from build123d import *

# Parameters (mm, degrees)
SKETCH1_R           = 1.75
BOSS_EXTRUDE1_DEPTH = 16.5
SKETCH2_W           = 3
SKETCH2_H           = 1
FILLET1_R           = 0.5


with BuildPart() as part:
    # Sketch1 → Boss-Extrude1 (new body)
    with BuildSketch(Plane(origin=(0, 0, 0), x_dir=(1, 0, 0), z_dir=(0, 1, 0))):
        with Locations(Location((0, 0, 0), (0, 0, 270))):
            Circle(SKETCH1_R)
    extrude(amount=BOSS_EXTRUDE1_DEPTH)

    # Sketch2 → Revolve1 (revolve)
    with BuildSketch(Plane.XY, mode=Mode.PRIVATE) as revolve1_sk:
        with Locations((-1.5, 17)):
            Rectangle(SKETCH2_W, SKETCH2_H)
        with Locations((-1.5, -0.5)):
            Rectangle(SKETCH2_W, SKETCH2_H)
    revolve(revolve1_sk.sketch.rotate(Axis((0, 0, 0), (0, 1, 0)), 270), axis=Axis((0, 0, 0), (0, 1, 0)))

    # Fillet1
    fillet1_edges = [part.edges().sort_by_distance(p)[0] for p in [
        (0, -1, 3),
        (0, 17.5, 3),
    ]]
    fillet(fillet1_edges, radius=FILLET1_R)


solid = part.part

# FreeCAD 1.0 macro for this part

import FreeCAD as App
import Part
import Sketcher

V = App.Vector
Q = App.Units.Quantity


def edges_at(feature, points):
    """Names of the edges that pass closest to the given points."""
    edges = feature.Shape.Edges
    near = lambda p: min(range(len(edges)), key=lambda i: edges[i].distToShape(Part.Vertex(*p))[0])
    return sorted({f"Edge{near(p) + 1}" for p in points})

doc = App.newDocument("Part")
body = doc.addObject("PartDesign::Body", "Body")

# Sketch on XZ plane
sketch1 = doc.addObject("Sketcher::SketchObject", "Sketch")
body.addObject(sketch1)
sketch1.AttachmentSupport = (doc.XZ_Plane, [""])
sketch1.MapMode = "FlatFace"
sketch1.addGeometry(Part.Circle(V(0, 0, 0), V(0, 0, 1), 1.8), False)
sketch1.addConstraint(Sketcher.Constraint("Coincident", 0, 3, -1, 1))
sketch1.addConstraint(Sketcher.Constraint("Diameter", 0, Q("3.5 mm")))
pad1 = doc.addObject("PartDesign::Pad", "Pad")
body.addObject(pad1)
pad1.Profile = sketch1
pad1.Length = 16.5
pad1.Reversed = True

# Sketch on XY plane
sketch2 = doc.addObject("Sketcher::SketchObject", "Sketch001")
body.addObject(sketch2)
sketch2.AttachmentSupport = (doc.XY_Plane, [""])
sketch2.MapMode = "FlatFace"
sketch2.addGeometry(Part.LineSegment(V(-3, 17.5, 0), V(-3, 16.5, 0)), False)
sketch2.addGeometry(Part.LineSegment(V(-3, 16.5, 0), V(0, 16.5, 0)), False)
sketch2.addGeometry(Part.LineSegment(V(0, 16.5, 0), V(0, 17.5, 0)), False)
sketch2.addGeometry(Part.LineSegment(V(0, 17.5, 0), V(-3, 17.5, 0)), False)
sketch2.addGeometry(Part.LineSegment(V(-3, 0, 0), V(-3, -1, 0)), False)
sketch2.addGeometry(Part.LineSegment(V(-3, -1, 0), V(0, -1, 0)), False)
sketch2.addGeometry(Part.LineSegment(V(0, -1, 0), V(0, 0, 0)), False)
sketch2.addGeometry(Part.LineSegment(V(0, 0, 0), V(-3, 0, 0)), False)
sketch2.addConstraint(Sketcher.Constraint("Coincident", 0, 2, 1, 1))
sketch2.addConstraint(Sketcher.Constraint("Coincident", 1, 2, 2, 1))
sketch2.addConstraint(Sketcher.Constraint("Coincident", 2, 2, 3, 1))
sketch2.addConstraint(Sketcher.Constraint("Coincident", 3, 2, 0, 1))
sketch2.addConstraint(Sketcher.Constraint("Coincident", 4, 2, 5, 1))
sketch2.addConstraint(Sketcher.Constraint("Coincident", 5, 2, 6, 1))
sketch2.addConstraint(Sketcher.Constraint("Coincident", 6, 2, 7, 1))
sketch2.addConstraint(Sketcher.Constraint("Coincident", 7, 2, 4, 1))
sketch2.addConstraint(Sketcher.Constraint("Vertical", 0))
sketch2.addConstraint(Sketcher.Constraint("Horizontal", 1))
sketch2.addConstraint(Sketcher.Constraint("Vertical", 2))
sketch2.addConstraint(Sketcher.Constraint("Horizontal", 3))
sketch2.addConstraint(Sketcher.Constraint("Vertical", 4))
sketch2.addConstraint(Sketcher.Constraint("Horizontal", 5))
sketch2.addConstraint(Sketcher.Constraint("Vertical", 6))
sketch2.addConstraint(Sketcher.Constraint("Horizontal", 7))
sketch2.addConstraint(Sketcher.Constraint("Coincident", 6, 2, -1, 1))
sketch2.addConstraint(Sketcher.Constraint("PointOnObject", 1, 2, -2))
sketch2.addConstraint(Sketcher.Constraint("Vertical", 3, 2, 4, 2))
sketch2.addConstraint(Sketcher.Constraint("Equal", 2, 4))
sketch2.addConstraint(Sketcher.Constraint("DistanceX", 1, 1, 1, 2, Q("3 mm")))
sketch2.addConstraint(Sketcher.Constraint("DistanceY", 0, 2, 0, 1, Q("1 mm")))
sketch2.addConstraint(Sketcher.Constraint("DistanceY", -1, 1, 0, 2, Q("16.5 mm")))
revolution = doc.addObject("PartDesign::Revolution", "Revolution")
body.addObject(revolution)
revolution.Profile = sketch2
revolution.ReferenceAxis = (sketch2, ["V_Axis"])
revolution.Angle = 360
doc.recompute()

fillet = doc.addObject("PartDesign::Fillet", "Fillet")
body.addObject(fillet)
fillet.Base = (revolution, edges_at(revolution, [(0, -1, 3), (0, 17.5, 3)]))
fillet.Radius = 0.5

doc.recompute()
